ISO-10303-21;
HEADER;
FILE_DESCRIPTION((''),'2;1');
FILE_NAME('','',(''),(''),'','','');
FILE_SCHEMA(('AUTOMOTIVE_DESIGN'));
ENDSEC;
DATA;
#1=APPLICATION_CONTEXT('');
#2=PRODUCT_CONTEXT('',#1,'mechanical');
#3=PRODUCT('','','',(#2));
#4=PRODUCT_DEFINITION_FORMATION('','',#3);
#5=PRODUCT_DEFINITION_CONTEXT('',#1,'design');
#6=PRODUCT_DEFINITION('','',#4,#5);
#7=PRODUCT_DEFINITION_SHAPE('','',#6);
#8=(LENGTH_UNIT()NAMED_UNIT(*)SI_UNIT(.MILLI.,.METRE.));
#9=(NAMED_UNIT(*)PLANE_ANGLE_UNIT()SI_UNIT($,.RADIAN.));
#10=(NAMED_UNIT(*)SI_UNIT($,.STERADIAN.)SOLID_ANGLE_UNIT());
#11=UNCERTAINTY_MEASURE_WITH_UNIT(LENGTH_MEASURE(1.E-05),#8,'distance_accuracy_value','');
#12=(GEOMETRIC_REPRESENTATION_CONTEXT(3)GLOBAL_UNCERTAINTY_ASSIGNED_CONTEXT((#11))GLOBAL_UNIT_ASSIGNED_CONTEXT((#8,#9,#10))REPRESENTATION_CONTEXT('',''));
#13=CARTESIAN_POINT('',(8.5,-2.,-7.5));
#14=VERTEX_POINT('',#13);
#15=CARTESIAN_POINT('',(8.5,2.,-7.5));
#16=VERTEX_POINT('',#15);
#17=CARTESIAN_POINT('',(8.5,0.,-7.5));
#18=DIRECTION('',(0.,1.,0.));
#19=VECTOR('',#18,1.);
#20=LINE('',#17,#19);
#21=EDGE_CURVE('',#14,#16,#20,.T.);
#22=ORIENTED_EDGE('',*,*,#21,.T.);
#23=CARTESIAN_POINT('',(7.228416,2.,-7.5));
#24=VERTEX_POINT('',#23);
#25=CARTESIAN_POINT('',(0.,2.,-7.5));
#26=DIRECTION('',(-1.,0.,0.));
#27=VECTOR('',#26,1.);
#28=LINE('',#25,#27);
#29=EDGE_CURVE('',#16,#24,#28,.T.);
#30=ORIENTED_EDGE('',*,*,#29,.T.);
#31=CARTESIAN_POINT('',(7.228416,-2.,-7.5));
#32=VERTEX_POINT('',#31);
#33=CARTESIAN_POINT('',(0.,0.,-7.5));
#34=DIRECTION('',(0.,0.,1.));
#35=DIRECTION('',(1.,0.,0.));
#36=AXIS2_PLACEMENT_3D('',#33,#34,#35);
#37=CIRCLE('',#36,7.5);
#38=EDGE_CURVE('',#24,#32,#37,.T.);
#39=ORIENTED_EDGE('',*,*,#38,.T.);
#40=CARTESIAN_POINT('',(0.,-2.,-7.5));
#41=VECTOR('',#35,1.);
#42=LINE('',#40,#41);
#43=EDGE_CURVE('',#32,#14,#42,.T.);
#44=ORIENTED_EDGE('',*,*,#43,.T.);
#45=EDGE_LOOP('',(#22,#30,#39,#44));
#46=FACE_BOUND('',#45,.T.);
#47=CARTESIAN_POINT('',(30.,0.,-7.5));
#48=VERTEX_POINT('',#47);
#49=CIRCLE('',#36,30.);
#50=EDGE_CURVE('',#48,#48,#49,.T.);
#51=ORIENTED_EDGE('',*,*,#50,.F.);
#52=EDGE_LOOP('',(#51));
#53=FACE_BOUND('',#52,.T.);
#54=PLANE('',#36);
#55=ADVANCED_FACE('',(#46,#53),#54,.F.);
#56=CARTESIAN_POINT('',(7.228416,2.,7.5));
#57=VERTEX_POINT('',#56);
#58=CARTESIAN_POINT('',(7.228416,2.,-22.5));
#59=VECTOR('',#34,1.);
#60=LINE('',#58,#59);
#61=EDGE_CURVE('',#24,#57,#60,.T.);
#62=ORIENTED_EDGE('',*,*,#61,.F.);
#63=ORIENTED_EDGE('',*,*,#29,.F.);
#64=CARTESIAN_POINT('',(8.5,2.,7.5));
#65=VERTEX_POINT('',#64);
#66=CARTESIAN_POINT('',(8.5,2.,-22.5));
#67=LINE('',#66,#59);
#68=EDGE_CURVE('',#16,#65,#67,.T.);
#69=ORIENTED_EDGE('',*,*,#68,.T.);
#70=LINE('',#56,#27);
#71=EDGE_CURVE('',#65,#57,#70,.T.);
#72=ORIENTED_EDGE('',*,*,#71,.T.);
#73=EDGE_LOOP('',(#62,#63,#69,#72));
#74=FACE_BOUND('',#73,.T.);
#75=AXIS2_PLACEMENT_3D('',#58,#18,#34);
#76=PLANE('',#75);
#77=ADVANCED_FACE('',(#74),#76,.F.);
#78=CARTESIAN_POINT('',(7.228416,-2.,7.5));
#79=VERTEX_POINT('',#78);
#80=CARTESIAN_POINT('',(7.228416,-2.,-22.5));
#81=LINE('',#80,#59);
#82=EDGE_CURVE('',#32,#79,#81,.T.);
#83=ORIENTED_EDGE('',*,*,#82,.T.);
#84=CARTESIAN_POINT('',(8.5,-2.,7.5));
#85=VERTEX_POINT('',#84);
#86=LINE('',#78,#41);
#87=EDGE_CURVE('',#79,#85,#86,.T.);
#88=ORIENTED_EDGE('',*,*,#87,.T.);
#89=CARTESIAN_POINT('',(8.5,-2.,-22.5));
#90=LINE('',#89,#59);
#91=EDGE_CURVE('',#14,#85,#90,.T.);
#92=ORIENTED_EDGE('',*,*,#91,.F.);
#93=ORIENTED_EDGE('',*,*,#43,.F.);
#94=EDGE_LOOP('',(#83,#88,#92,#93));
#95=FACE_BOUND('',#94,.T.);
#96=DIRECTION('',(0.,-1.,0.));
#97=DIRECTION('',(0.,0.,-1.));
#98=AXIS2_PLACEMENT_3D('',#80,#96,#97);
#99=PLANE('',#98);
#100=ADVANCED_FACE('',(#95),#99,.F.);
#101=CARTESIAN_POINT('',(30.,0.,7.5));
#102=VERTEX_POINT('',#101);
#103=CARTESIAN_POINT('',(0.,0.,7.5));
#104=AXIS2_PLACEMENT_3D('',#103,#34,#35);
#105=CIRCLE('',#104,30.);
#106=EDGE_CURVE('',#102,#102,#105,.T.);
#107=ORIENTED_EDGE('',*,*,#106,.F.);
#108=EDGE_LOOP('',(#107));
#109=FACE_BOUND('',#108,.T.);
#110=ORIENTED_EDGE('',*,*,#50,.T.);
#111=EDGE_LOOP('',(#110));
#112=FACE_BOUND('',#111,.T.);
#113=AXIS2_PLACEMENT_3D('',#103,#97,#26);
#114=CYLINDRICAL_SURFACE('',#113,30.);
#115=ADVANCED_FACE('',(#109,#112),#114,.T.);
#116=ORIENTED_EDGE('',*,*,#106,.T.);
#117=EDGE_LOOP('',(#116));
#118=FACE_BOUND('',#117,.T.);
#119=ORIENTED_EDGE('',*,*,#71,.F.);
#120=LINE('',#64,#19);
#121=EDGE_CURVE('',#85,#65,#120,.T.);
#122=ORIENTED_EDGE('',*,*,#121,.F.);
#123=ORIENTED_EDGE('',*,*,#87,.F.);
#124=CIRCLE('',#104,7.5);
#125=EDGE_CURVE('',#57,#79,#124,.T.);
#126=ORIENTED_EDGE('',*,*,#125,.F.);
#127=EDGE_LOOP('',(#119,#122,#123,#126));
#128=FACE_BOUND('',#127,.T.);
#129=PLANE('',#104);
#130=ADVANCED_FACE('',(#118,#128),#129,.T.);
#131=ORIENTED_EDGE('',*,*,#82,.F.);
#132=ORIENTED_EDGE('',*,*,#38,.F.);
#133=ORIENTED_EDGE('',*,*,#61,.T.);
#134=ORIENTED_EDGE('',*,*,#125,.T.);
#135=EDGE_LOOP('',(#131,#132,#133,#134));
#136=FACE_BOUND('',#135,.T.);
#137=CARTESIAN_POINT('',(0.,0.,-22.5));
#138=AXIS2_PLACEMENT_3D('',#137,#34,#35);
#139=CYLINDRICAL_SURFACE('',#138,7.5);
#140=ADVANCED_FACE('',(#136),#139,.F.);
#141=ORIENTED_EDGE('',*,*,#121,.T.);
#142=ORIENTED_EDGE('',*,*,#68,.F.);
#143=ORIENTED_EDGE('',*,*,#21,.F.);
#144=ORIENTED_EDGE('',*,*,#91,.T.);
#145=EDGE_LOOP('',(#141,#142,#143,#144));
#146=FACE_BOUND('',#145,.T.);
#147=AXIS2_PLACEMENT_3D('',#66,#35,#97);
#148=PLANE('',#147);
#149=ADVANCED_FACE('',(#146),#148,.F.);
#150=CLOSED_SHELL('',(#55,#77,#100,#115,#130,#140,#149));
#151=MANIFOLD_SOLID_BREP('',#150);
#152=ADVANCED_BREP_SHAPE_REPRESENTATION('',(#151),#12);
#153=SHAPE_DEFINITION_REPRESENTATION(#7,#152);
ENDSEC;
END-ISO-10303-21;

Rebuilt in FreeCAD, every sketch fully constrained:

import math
import FreeCAD as App
import Part
import Sketcher

V = App.Vector

doc = App.newDocument("Part")
params = doc.addObject("Spreadsheet::Sheet", "Params")
for row, (alias, value) in enumerate([
    ("sketch1_diameter", "60 mm"),
    ("pad1_length", "15 mm"),
    ("sketch2_radius", "7.5 mm"),
    ("sketch2_height", "4 mm"),
    ("pocket1_length", "30 mm"),
], start=1):
    params.set(f"A{row}", alias)
    params.set(f"B{row}", "=" + value)
    params.setAlias(f"B{row}", alias)

body = doc.addObject("PartDesign::Body", "Body")

# Sketch on XY plane
sketch1 = body.newObject("Sketcher::SketchObject", "Sketch")
sketch1.AttachmentSupport = (doc.getObject("XY_Plane"), [""])
sketch1.MapMode = "FlatFace"
sketch1.addGeometry(Part.Circle(V(0, 0, 0), V(0, 0, 1), 30), False)
sketch1.addConstraint([
    Sketcher.Constraint("Coincident", 0, 3, -1, 1),
    Sketcher.Constraint("Diameter", 0, 60.0),
])
sketch1.setExpression("Constraints[1]", "Params.sketch1_diameter")
pad1 = body.newObject("PartDesign::Pad", "Pad")
pad1.Profile = sketch1
pad1.setExpression("Length", "Params.pad1_length")
pad1.Midplane = True

# Sketch on XY plane
sketch2 = body.newObject("Sketcher::SketchObject", "Sketch001")
sketch2.AttachmentSupport = (doc.getObject("XY_Plane"), [""])
sketch2.MapMode = "FlatFace"
sketch2.AttachmentOffset = App.Placement(V(0, 0, 7.5), App.Rotation())
sketch2.addGeometry([
    Part.LineSegment(V(8.5, 2, 0), V(7.228416, 2, 0)),
    Part.ArcOfCircle(Part.Circle(V(0, 0, 0), V(0, 0, 1), 7.5), math.radians(15.46601), math.radians(344.53399)),
    Part.LineSegment(V(7.228416, -2, 0), V(8.5, -2, 0)),
    Part.LineSegment(V(8.5, -2, 0), V(8.5, 2, 0)),
], False)
sketch2.addConstraint([
    Sketcher.Constraint("Coincident", 0, 2, 1, 1),
    Sketcher.Constraint("Coincident", 1, 2, 2, 1),
    Sketcher.Constraint("Coincident", 2, 2, 3, 1),
    Sketcher.Constraint("Coincident", 3, 2, 0, 1),
    Sketcher.Constraint("Horizontal", 0),
    Sketcher.Constraint("Horizontal", 2),
    Sketcher.Constraint("Vertical", 3),
    Sketcher.Constraint("Coincident", 1, 3, -1, 1),
    Sketcher.Constraint("Vertical", 0, 2, 1, 2),
    Sketcher.Constraint("Radius", 1, 7.5),
    Sketcher.Constraint("DistanceY", 3, 1, 3, 2, 4.0),
    Sketcher.Constraint("DistanceX", -1, 1, 2, 2, 8.5),
])
sketch2.setExpression("Constraints[9]", "Params.sketch2_radius")
sketch2.setExpression("Constraints[10]", "Params.sketch2_height")
pocket1 = body.newObject("PartDesign::Pocket", "Pocket")
pocket1.Profile = sketch2
pocket1.setExpression("Length", "Params.pocket1_length")

doc.recompute()
